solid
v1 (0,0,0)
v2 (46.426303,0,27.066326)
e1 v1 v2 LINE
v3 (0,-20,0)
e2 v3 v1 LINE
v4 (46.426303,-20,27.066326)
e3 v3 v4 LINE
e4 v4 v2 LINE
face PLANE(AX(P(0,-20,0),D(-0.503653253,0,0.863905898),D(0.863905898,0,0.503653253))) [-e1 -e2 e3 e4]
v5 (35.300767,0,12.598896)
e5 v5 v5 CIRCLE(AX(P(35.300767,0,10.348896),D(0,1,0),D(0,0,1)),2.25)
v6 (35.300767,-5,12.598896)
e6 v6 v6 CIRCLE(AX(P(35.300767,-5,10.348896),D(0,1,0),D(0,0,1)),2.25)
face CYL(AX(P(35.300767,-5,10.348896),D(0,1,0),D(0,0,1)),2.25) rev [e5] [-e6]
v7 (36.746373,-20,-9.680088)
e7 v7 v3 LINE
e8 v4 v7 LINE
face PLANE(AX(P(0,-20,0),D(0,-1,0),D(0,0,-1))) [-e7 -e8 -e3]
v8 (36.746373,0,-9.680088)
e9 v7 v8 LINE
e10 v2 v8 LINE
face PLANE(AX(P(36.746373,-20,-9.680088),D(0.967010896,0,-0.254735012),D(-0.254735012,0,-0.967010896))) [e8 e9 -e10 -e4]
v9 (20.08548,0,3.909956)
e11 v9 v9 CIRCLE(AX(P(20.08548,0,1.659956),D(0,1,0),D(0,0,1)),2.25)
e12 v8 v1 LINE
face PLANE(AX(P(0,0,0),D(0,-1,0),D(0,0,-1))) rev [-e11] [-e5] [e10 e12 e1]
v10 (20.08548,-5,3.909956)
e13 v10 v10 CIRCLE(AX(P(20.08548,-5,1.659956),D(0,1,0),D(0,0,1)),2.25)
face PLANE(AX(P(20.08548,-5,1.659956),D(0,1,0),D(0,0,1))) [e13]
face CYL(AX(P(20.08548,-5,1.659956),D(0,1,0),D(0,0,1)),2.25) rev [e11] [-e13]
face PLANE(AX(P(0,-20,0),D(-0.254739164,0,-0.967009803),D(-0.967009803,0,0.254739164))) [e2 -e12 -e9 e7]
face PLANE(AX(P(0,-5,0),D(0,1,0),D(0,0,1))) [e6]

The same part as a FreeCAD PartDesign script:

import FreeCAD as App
import Part
import Sketcher
Q = App.Units.Quantity

doc = App.newDocument("Part")
body = doc.addObject("PartDesign::Body", "Body")

sketch1 = body.newObject("Sketcher::SketchObject", "Sketch")
sketch1.AttachmentSupport = (doc.getObject("XZ_Plane"), [""])
sketch1.MapMode = "FlatFace"
sketch1.addGeometry(Part.LineSegment(App.Vector(0, 0, 0), App.Vector(46, 27, 0)), False)
sketch1.addGeometry(Part.LineSegment(App.Vector(46, 27, 0), App.Vector(37, -10, 0)), False)
sketch1.addGeometry(Part.LineSegment(App.Vector(37, -10, 0), App.Vector(0, 0, 0)), False)
sketch1.addConstraint(Sketcher.Constraint("Coincident", 0, 2, 1, 1))
sketch1.addConstraint(Sketcher.Constraint("Coincident", 1, 2, 2, 1))
sketch1.addConstraint(Sketcher.Constraint("Coincident", 2, 2, 0, 1))
sketch1.addConstraint(Sketcher.Constraint("Coincident", 2, 2, -1, 1))
sketch1.addConstraint(Sketcher.Constraint("Equal", 1, 2))
sketch1.addConstraint(Sketcher.Constraint("Distance", 1, Q("38 mm")))
sketch1.addConstraint(Sketcher.Constraint("Distance", 0, Q("53.74 mm")))
sketch1.addConstraint(Sketcher.Constraint("DistanceY", 1, 2, -1, 1, Q("9.680088 mm")))
pad1 = body.newObject("PartDesign::Pad", "Pad")
pad1.Profile = sketch1
pad1.Length = 20

sketch2 = body.newObject("Sketcher::SketchObject", "Sketch001")
sketch2.AttachmentSupport = (doc.getObject("XZ_Plane"), [""])
sketch2.MapMode = "FlatFace"
sketch2.addGeometry(Part.Circle(App.Vector(20.1, 1.7, 0), App.Vector(0, 0, 1), 2.2), False)
sketch2.addGeometry(Part.Circle(App.Vector(35.3, 10.3, 0), App.Vector(0, 0, 1), 2.2), False)
sketch2.addConstraint(Sketcher.Constraint("Equal", 0, 1))
sketch2.addConstraint(Sketcher.Constraint("Diameter", 0, Q("4.5 mm")))
sketch2.addConstraint(Sketcher.Constraint("DistanceX", -1, 1, 0, 3, Q("20.08548 mm")))
sketch2.addConstraint(Sketcher.Constraint("DistanceY", 0, 3, 1, 3, Q("8.68894 mm")))
sketch2.addConstraint(Sketcher.Constraint("DistanceY", -1, 1, 0, 3, Q("1.659956 mm")))
sketch2.addConstraint(Sketcher.Constraint("DistanceX", -1, 1, 1, 3, Q("35.300767 mm")))
pocket1 = body.newObject("PartDesign::Pocket", "Pocket")
pocket1.Profile = sketch2
pocket1.Length = 5
pocket1.Reversed = True

doc.recompute()
